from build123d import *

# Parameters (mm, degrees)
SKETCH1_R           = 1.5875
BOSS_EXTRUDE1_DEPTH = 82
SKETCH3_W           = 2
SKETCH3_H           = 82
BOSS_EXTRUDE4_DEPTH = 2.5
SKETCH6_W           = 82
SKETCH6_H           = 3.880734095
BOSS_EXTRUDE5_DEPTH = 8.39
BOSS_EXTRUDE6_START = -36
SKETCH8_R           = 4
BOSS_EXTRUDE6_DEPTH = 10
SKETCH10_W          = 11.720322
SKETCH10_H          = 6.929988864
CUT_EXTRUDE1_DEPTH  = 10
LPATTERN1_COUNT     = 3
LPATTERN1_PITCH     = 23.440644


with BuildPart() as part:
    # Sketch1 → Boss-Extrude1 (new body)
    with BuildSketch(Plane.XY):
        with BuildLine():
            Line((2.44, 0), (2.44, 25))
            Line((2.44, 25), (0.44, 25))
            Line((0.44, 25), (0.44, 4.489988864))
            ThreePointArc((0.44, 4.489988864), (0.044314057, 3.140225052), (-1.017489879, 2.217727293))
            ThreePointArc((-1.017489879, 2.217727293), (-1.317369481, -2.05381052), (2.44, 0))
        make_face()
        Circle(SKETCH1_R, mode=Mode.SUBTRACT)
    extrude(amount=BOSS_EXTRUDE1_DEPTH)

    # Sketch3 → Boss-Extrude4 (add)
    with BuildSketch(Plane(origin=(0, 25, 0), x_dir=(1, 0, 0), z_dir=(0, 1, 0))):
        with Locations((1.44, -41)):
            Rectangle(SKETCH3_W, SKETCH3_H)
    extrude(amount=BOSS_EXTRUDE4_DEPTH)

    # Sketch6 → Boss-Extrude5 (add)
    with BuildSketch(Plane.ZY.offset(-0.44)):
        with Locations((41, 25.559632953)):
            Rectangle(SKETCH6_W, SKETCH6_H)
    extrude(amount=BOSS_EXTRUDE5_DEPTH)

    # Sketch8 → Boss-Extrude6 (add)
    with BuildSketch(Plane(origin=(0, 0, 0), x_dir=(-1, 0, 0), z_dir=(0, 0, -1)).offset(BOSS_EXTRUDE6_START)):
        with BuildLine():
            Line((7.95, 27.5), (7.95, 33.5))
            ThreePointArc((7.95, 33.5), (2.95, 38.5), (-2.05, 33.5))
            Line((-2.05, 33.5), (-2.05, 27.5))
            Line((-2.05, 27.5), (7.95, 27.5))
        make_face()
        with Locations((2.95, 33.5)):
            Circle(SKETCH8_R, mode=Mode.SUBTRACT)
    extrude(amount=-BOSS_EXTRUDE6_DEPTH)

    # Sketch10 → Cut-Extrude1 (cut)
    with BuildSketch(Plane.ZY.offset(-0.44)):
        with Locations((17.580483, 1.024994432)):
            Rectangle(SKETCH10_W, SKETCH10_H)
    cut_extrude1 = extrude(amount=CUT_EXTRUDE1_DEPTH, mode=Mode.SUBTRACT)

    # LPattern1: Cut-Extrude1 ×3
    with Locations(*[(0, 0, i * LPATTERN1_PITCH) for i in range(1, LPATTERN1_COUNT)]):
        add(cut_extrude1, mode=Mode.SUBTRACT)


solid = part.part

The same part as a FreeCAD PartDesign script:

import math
import FreeCAD as App
import Part
import Sketcher

V = App.Vector
Q = App.Units.Quantity

doc = App.newDocument("Part")
body = doc.addObject("PartDesign::Body", "Body")

# Sketch on XY plane
sketch1 = body.newObject("Sketcher::SketchObject", "Sketch")
sketch1.AttachmentSupport = (doc.getObject("XY_Plane"), [""])
sketch1.MapMode = "FlatFace"
sketch1.addGeometry(Part.LineSegment(V(2.4, 0, 0), V(2.4, 25, 0)), False)
sketch1.addGeometry(Part.LineSegment(V(2.4, 25, 0), V(0.4, 25, 0)), False)
sketch1.addGeometry(Part.LineSegment(V(0.4, 25, 0), V(0.4, 4.5, 0)), False)
sketch1.addGeometry(Part.ArcOfCircle(Part.Circle(V(-2.1, 4.5, 0), V(0, 0, 1), 2.5), math.radians(-65), math.radians(0)), False)
sketch1.addGeometry(Part.ArcOfCircle(Part.Circle(V(0, 0, 0), V(0, 0, 1), 2.4), math.radians(115), math.radians(360)), False)
sketch1.addGeometry(Part.Circle(V(0, 0, 0), V(0, 0, 1), 1.6), False)
sketch1.addConstraint(Sketcher.Constraint("Coincident", 0, 2, 1, 1))
sketch1.addConstraint(Sketcher.Constraint("Coincident", 1, 2, 2, 1))
sketch1.addConstraint(Sketcher.Constraint("Tangent", 2, 2, 3, 2))
sketch1.addConstraint(Sketcher.Constraint("Tangent", 3, 1, 4, 1))
sketch1.addConstraint(Sketcher.Constraint("Tangent", 4, 2, 0, 1))
sketch1.addConstraint(Sketcher.Constraint("Vertical", 0))
sketch1.addConstraint(Sketcher.Constraint("Horizontal", 1))
sketch1.addConstraint(Sketcher.Constraint("Vertical", 2))
sketch1.addConstraint(Sketcher.Constraint("Coincident", 4, 3, -1, 1))
sketch1.addConstraint(Sketcher.Constraint("Coincident", 5, 3, -1, 1))
sketch1.addConstraint(Sketcher.Constraint("Radius", 3, Q("2.5 mm")))
sketch1.addConstraint(Sketcher.Constraint("DistanceX", 1, 2, 1, 1, Q("2 mm")))
sketch1.addConstraint(Sketcher.Constraint("DistanceY", 0, 1, 0, 2, Q("25 mm")))
sketch1.addConstraint(Sketcher.Constraint("Radius", 4, Q("2.44 mm")))
sketch1.addConstraint(Sketcher.Constraint("Diameter", 5, Q("3.175 mm")))
pad1 = body.newObject("PartDesign::Pad", "Pad")
pad1.Profile = sketch1
pad1.Length = 82

# Sketch on XZ plane
sketch2 = body.newObject("Sketcher::SketchObject", "Sketch001")
sketch2.AttachmentSupport = (doc.getObject("XZ_Plane"), [""])
sketch2.MapMode = "FlatFace"
sketch2.AttachmentOffset = App.Placement(V(0, 0, -25), App.Rotation())
sketch2.addGeometry(Part.LineSegment(V(0.4, 0, 0), V(0.4, 82, 0)), False)
sketch2.addGeometry(Part.LineSegment(V(0.4, 82, 0), V(2.4, 82, 0)), False)
sketch2.addGeometry(Part.LineSegment(V(2.4, 82, 0), V(2.4, 0, 0)), False)
sketch2.addGeometry(Part.LineSegment(V(2.4, 0, 0), V(0.4, 0, 0)), False)
sketch2.addConstraint(Sketcher.Constraint("Coincident", 0, 2, 1, 1))
sketch2.addConstraint(Sketcher.Constraint("Coincident", 1, 2, 2, 1))
sketch2.addConstraint(Sketcher.Constraint("Coincident", 2, 2, 3, 1))
sketch2.addConstraint(Sketcher.Constraint("Coincident", 3, 2, 0, 1))
sketch2.addConstraint(Sketcher.Constraint("Vertical", 0))
sketch2.addConstraint(Sketcher.Constraint("Horizontal", 1))
sketch2.addConstraint(Sketcher.Constraint("Vertical", 2))
sketch2.addConstraint(Sketcher.Constraint("Horizontal", 3))
sketch2.addConstraint(Sketcher.Constraint("PointOnObject", 2, 2, -1))
sketch2.addConstraint(Sketcher.Constraint("DistanceX", 1, 1, 1, 2, Q("2 mm")))
sketch2.addConstraint(Sketcher.Constraint("DistanceY", 0, 1, 0, 2, Q("82 mm")))
sketch2.addConstraint(Sketcher.Constraint("DistanceX", -1, 1, 0, 2, Q("0.44 mm")))
pad2 = body.newObject("PartDesign::Pad", "Pad001")
pad2.Profile = sketch2
pad2.Length = 2.5
pad2.Reversed = True

# Sketch on YZ plane
sketch3 = body.newObject("Sketcher::SketchObject", "Sketch002")
sketch3.AttachmentSupport = (doc.getObject("YZ_Plane"), [""])
sketch3.MapMode = "FlatFace"
sketch3.AttachmentOffset = App.Placement(V(0, 0, 0.44), App.Rotation())
sketch3.addGeometry(Part.LineSegment(V(27.5, 0, 0), V(23.6, 0, 0)), False)
sketch3.addGeometry(Part.LineSegment(V(23.6, 0, 0), V(23.6, 82, 0)), False)
sketch3.addGeometry(Part.LineSegment(V(23.6, 82, 0), V(27.5, 82, 0)), False)
sketch3.addGeometry(Part.LineSegment(V(27.5, 82, 0), V(27.5, 0, 0)), False)
sketch3.addConstraint(Sketcher.Constraint("Coincident", 0, 2, 1, 1))
sketch3.addConstraint(Sketcher.Constraint("Coincident", 1, 2, 2, 1))
sketch3.addConstraint(Sketcher.Constraint("Coincident", 2, 2, 3, 1))
sketch3.addConstraint(Sketcher.Constraint("Coincident", 3, 2, 0, 1))
sketch3.addConstraint(Sketcher.Constraint("Horizontal", 0))
sketch3.addConstraint(Sketcher.Constraint("Vertical", 1))
sketch3.addConstraint(Sketcher.Constraint("Horizontal", 2))
sketch3.addConstraint(Sketcher.Constraint("Vertical", 3))
sketch3.addConstraint(Sketcher.Constraint("PointOnObject", 0, 2, -1))
sketch3.addConstraint(Sketcher.Constraint("DistanceY", 1, 1, 1, 2, Q("82 mm")))
sketch3.addConstraint(Sketcher.Constraint("DistanceX", -1, 1, 2, 2, Q("27.5 mm")))
sketch3.addConstraint(Sketcher.Constraint("DistanceX", 0, 2, 0, 1, Q("3.880734 mm")))
pad3 = body.newObject("PartDesign::Pad", "Pad002")
pad3.Profile = sketch3
pad3.Length = 8.39
pad3.Reversed = True

# Sketch on XY plane
sketch4 = body.newObject("Sketcher::SketchObject", "Sketch003")
sketch4.AttachmentSupport = (doc.getObject("XY_Plane"), [""])
sketch4.MapMode = "FlatFace"
sketch4.AttachmentOffset = App.Placement(V(0, 0, 36), App.Rotation())
sketch4.addGeometry(Part.LineSegment(V(-8, 27.5, 0), V(-8, 33.5, 0)), False)
sketch4.addGeometry(Part.ArcOfCircle(Part.Circle(V(-3, 33.5, 0), V(0, 0, 1), 5), math.radians(0), math.radians(180)), False)
sketch4.addGeometry(Part.LineSegment(V(2, 33.5, 0), V(2, 27.5, 0)), False)
sketch4.addGeometry(Part.LineSegment(V(2, 27.5, 0), V(-8, 27.5, 0)), False)
sketch4.addGeometry(Part.Circle(V(-3, 33.5, 0), V(0, 0, 1), 4), False)
sketch4.addConstraint(Sketcher.Constraint("Tangent", 0, 2, 1, 2))
sketch4.addConstraint(Sketcher.Constraint("Tangent", 1, 1, 2, 1))
sketch4.addConstraint(Sketcher.Constraint("Coincident", 2, 2, 3, 1))
sketch4.addConstraint(Sketcher.Constraint("Coincident", 3, 2, 0, 1))
sketch4.addConstraint(Sketcher.Constraint("Vertical", 0))
sketch4.addConstraint(Sketcher.Constraint("Vertical", 2))
sketch4.addConstraint(Sketcher.Constraint("Horizontal", 3))
sketch4.addConstraint(Sketcher.Constraint("Coincident", 4, 3, 1, 3))
sketch4.addConstraint(Sketcher.Constraint("Diameter", 4, Q("8 mm")))
sketch4.addConstraint(Sketcher.Constraint("Radius", 1, Q("5 mm")))
sketch4.addConstraint(Sketcher.Constraint("DistanceY", 0, 1, 0, 2, Q("6 mm")))
sketch4.addConstraint(Sketcher.Constraint("DistanceY", -1, 1, 1, 3, Q("33.5 mm")))
sketch4.addConstraint(Sketcher.Constraint("DistanceX", 1, 3, -1, 1, Q("2.95 mm")))
pad4 = body.newObject("PartDesign::Pad", "Pad003")
pad4.Profile = sketch4
pad4.Length = 10

# Sketch on YZ plane
sketch5 = body.newObject("Sketcher::SketchObject", "Sketch004")
sketch5.AttachmentSupport = (doc.getObject("YZ_Plane"), [""])
sketch5.MapMode = "FlatFace"
sketch5.AttachmentOffset = App.Placement(V(0, 0, 0.44), App.Rotation())
sketch5.addGeometry(Part.LineSegment(V(4, 12, 0), V(-2, 12, 0)), False)
sketch5.addGeometry(Part.LineSegment(V(-2, 12, 0), V(-2, 23, 0)), False)
sketch5.addGeometry(Part.LineSegment(V(-2, 23, 0), V(4, 23, 0)), False)
sketch5.addGeometry(Part.LineSegment(V(4, 23, 0), V(4, 12, 0)), False)
sketch5.addConstraint(Sketcher.Constraint("Coincident", 0, 2, 1, 1))
sketch5.addConstraint(Sketcher.Constraint("Coincident", 1, 2, 2, 1))
sketch5.addConstraint(Sketcher.Constraint("Coincident", 2, 2, 3, 1))
sketch5.addConstraint(Sketcher.Constraint("Coincident", 3, 2, 0, 1))
sketch5.addConstraint(Sketcher.Constraint("Horizontal", 0))
sketch5.addConstraint(Sketcher.Constraint("Vertical", 1))
sketch5.addConstraint(Sketcher.Constraint("Horizontal", 2))
sketch5.addConstraint(Sketcher.Constraint("Vertical", 3))
sketch5.addConstraint(Sketcher.Constraint("DistanceX", 0, 2, -1, 1, Q("2.44 mm")))
sketch5.addConstraint(Sketcher.Constraint("DistanceX", 0, 2, 0, 1, Q("6.929989 mm")))
sketch5.addConstraint(Sketcher.Constraint("DistanceY", 1, 1, 1, 2, Q("11.720322 mm")))
sketch5.addConstraint(Sketcher.Constraint("DistanceY", -1, 1, 0, 2, Q("11.720322 mm")))
pocket1 = body.newObject("PartDesign::Pocket", "Pocket")
pocket1.Profile = sketch5
pocket1.Length = 10
doc.recompute()

linearpattern = body.newObject("PartDesign::LinearPattern", "LinearPattern")
linearpattern.Originals = [pocket1]
linearpattern.Direction = (doc.getObject("Z_Axis"), [""])
linearpattern.Mode = "offset"
linearpattern.Offset = 23.440644
linearpattern.Occurrences = 3
body.Tip = linearpattern

doc.recompute()
